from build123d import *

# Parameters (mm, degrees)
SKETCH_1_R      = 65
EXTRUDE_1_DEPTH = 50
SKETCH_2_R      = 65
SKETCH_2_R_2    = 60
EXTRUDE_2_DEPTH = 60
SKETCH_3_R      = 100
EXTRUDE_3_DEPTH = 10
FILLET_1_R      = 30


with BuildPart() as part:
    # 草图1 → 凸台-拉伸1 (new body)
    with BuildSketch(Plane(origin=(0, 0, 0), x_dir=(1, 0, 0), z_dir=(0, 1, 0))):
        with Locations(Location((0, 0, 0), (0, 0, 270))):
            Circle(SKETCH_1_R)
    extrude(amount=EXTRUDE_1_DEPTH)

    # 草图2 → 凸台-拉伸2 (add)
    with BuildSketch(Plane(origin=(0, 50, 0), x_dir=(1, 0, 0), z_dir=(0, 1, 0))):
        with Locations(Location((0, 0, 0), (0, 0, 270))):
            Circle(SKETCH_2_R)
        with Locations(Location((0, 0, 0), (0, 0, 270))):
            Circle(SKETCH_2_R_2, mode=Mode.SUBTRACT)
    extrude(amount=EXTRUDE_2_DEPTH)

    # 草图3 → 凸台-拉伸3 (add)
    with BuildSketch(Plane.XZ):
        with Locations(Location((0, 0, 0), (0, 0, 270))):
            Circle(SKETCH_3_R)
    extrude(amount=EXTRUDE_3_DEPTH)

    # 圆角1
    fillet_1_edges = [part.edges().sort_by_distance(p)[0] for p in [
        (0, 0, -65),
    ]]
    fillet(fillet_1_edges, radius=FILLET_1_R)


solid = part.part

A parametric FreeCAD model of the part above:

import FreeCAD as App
import Part
import Sketcher
from FreeCAD import Vector
Q = App.Units.Quantity


def edges_at(feature, points):
    """Names of the edges that pass closest to the given points."""
    edges = feature.Shape.Edges
    near = lambda p: min(range(len(edges)), key=lambda i: edges[i].distToShape(Part.Vertex(*p))[0])
    return sorted({f"Edge{near(p) + 1}" for p in points})

doc = App.newDocument("Part")
body = doc.addObject("PartDesign::Body", "Body")

# Sketch on XZ plane
sketch1 = body.newObject("Sketcher::SketchObject", "Sketch")
sketch1.AttachmentSupport = (doc.getObject("XZ_Plane"), [""])
sketch1.MapMode = "FlatFace"
sketch1.addGeometry(Part.Circle(Vector(0, 0, 0), Vector(0, 0, 1), 65), False)
sketch1.addConstraint(Sketcher.Constraint("Coincident", 0, 3, -1, 1))
sketch1.addConstraint(Sketcher.Constraint("Diameter", 0, Q("130 mm")))
pad1 = body.newObject("PartDesign::Pad", "Pad")
pad1.Profile = sketch1
pad1.Length = 50
pad1.Reversed = True

# Sketch on XZ plane
sketch2 = body.newObject("Sketcher::SketchObject", "Sketch001")
sketch2.AttachmentSupport = (doc.getObject("XZ_Plane"), [""])
sketch2.MapMode = "FlatFace"
sketch2.AttachmentOffset = App.Placement(Vector(0, 0, -50), App.Rotation())
sketch2.addGeometry(Part.Circle(Vector(0, 0, 0), Vector(0, 0, 1), 65), False)
sketch2.addGeometry(Part.Circle(Vector(0, 0, 0), Vector(0, 0, 1), 60), False)
sketch2.addConstraint(Sketcher.Constraint("Coincident", 0, 3, -1, 1))
sketch2.addConstraint(Sketcher.Constraint("Coincident", 1, 3, -1, 1))
sketch2.addConstraint(Sketcher.Constraint("Diameter", 0, Q("130 mm")))
sketch2.addConstraint(Sketcher.Constraint("Diameter", 1, Q("120 mm")))
pad2 = body.newObject("PartDesign::Pad", "Pad001")
pad2.Profile = sketch2
pad2.Length = 60
pad2.Reversed = True

# Sketch on XZ plane
sketch3 = body.newObject("Sketcher::SketchObject", "Sketch002")
sketch3.AttachmentSupport = (doc.getObject("XZ_Plane"), [""])
sketch3.MapMode = "FlatFace"
sketch3.addGeometry(Part.Circle(Vector(0, 0, 0), Vector(0, 0, 1), 100), False)
sketch3.addConstraint(Sketcher.Constraint("Coincident", 0, 3, -1, 1))
sketch3.addConstraint(Sketcher.Constraint("Diameter", 0, Q("200 mm")))
pad3 = body.newObject("PartDesign::Pad", "Pad002")
pad3.Profile = sketch3
pad3.Length = 10
doc.recompute()

fillet = body.newObject("PartDesign::Fillet", "Fillet")
fillet.Base = (pad3, edges_at(pad3, [(0, 0, -65)]))
fillet.Radius = 30

doc.recompute()
